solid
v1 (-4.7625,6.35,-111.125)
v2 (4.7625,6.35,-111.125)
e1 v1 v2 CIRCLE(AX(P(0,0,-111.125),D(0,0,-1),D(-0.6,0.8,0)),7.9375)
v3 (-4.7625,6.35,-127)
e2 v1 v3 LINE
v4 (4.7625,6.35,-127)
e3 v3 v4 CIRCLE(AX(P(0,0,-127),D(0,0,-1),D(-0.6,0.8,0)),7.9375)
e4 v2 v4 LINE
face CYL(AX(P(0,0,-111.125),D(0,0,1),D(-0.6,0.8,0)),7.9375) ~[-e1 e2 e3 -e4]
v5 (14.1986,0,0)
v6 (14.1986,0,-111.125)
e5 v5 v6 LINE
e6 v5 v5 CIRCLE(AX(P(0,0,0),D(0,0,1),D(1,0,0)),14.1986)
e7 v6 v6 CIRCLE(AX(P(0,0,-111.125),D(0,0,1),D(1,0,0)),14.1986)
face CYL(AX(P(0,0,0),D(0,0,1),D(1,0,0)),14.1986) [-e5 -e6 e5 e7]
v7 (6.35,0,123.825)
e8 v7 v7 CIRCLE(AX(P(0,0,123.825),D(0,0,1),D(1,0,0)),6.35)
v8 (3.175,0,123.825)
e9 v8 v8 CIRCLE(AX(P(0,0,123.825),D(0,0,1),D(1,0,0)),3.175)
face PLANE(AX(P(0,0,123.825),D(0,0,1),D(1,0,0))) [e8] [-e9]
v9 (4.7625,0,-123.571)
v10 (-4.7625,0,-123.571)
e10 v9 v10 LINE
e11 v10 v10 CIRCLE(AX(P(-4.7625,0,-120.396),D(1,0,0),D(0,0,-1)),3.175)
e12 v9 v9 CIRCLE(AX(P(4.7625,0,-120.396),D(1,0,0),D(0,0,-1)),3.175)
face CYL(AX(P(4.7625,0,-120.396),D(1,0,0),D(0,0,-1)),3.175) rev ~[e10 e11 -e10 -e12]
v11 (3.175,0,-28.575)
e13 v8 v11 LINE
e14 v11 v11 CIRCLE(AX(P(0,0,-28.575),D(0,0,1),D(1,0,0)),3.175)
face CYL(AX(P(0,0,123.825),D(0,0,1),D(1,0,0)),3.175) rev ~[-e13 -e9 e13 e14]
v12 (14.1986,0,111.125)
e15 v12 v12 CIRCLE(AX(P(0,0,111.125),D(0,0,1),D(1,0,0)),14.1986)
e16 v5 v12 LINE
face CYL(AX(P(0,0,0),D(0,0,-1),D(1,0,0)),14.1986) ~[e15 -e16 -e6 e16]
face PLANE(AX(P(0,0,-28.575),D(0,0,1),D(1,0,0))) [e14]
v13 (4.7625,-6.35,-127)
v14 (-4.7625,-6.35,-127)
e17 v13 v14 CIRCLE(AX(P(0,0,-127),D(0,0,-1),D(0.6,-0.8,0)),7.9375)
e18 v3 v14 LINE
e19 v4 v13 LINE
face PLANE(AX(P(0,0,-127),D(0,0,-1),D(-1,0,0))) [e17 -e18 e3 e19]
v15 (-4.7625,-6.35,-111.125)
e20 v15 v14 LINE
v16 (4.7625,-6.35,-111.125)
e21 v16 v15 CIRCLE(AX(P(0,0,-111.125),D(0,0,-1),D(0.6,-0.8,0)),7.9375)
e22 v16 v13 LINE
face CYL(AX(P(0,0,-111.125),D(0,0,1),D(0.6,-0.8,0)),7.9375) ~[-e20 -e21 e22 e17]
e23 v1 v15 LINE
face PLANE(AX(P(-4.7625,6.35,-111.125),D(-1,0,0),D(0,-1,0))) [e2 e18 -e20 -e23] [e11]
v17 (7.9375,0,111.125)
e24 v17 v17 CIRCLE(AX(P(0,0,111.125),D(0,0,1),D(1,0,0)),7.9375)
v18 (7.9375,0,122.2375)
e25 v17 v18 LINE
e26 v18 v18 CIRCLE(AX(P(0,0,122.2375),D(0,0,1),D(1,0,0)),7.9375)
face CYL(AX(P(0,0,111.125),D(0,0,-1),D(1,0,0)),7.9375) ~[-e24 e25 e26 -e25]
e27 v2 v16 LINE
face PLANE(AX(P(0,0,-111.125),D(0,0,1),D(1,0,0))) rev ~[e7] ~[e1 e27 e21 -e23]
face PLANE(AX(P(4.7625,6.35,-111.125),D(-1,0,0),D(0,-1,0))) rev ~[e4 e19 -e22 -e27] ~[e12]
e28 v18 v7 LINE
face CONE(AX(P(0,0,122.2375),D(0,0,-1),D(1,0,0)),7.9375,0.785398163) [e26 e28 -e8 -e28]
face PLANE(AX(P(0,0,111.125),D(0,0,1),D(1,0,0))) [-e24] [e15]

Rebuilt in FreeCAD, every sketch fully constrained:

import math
import FreeCAD as App
import Part
import Sketcher
Q = App.Units.Quantity


def edges_at(feature, points):
    """Names of the edges that pass closest to the given points."""
    edges = feature.Shape.Edges
    near = lambda p: min(range(len(edges)), key=lambda i: edges[i].distToShape(Part.Vertex(*p))[0])
    return sorted({f"Edge{near(p) + 1}" for p in points})

doc = App.newDocument("Part")
body = doc.addObject("PartDesign::Body", "Body")

sketch1 = body.newObject("Sketcher::SketchObject", "Sketch")
sketch1.AttachmentSupport = (doc.getObject("XY_Plane"), [""])
sketch1.MapMode = "FlatFace"
sketch1.addGeometry(Part.Circle(App.Vector(0, 0, 0), App.Vector(0, 0, 1), 14), False)
sketch1.addConstraint([
    Sketcher.Constraint("Coincident", 0, 3, -1, 1),
    Sketcher.Constraint("Diameter", 0, Q("1.118 in")),
])
pad1 = body.newObject("PartDesign::Pad", "Pad")
pad1.Profile = sketch1
pad1.Length = Q("8.75 in")
pad1.Midplane = True

sketch2 = body.newObject("Sketcher::SketchObject", "Sketch001")
sketch2.AttachmentSupport = (doc.getObject("XY_Plane"), [""])
sketch2.MapMode = "FlatFace"
sketch2.AttachmentOffset = App.Placement(App.Vector(0, 0, -4.375 * 25.4), App.Rotation())
sketch2.addGeometry([
    Part.LineSegment(App.Vector(-5, -6, 0), App.Vector(-5, 6, 0)),
    Part.ArcOfCircle(Part.Circle(App.Vector(0, 0, 0), App.Vector(0, 0, 1), 8), math.radians(53), math.radians(127)),
    Part.LineSegment(App.Vector(5, 6, 0), App.Vector(5, -6, 0)),
    Part.ArcOfCircle(Part.Circle(App.Vector(0, 0, 0), App.Vector(0, 0, 1), 8), math.radians(-127), math.radians(-53)),
], False)
sketch2.addConstraint([
    Sketcher.Constraint("Coincident", 0, 2, 1, 2),
    Sketcher.Constraint("Coincident", 1, 1, 2, 1),
    Sketcher.Constraint("Coincident", 2, 2, 3, 2),
    Sketcher.Constraint("Coincident", 3, 1, 0, 1),
    Sketcher.Constraint("Vertical", 0),
    Sketcher.Constraint("Vertical", 2),
    Sketcher.Constraint("Coincident", 1, 3, -1, 1),
    Sketcher.Constraint("Coincident", 3, 3, -1, 1),
    Sketcher.Constraint("Equal", 1, 3),
    Sketcher.Constraint("Horizontal", 0, 2, 1, 1),
    Sketcher.Constraint("Radius", 1, Q("0.3125 in")),
    Sketcher.Constraint("DistanceY", 0, 1, 0, 2, Q("0.5 in")),
])
pad2 = body.newObject("PartDesign::Pad", "Pad001")
pad2.Profile = sketch2
pad2.Length = Q("0.625 in")
pad2.Reversed = True

sketch3 = body.newObject("Sketcher::SketchObject", "Sketch002")
sketch3.AttachmentSupport = (doc.getObject("YZ_Plane"), [""])
sketch3.MapMode = "FlatFace"
sketch3.AttachmentOffset = App.Placement(App.Vector(0, 0, 0.1875 * 25.4), App.Rotation())
sketch3.addGeometry(Part.Circle(App.Vector(0, -120.4, 0), App.Vector(0, 0, 1), 3.2), False)
sketch3.addConstraint([
    Sketcher.Constraint("PointOnObject", 0, 3, -2),
    Sketcher.Constraint("Diameter", 0, Q("0.25 in")),
    Sketcher.Constraint("DistanceY", 0, 3, -1, 1, Q("4.74 in")),
])
pocket1 = body.newObject("PartDesign::Pocket", "Pocket")
pocket1.Profile = sketch3
pocket1.Type = "ThroughAll"

sketch4 = body.newObject("Sketcher::SketchObject", "Sketch003")
sketch4.AttachmentSupport = (doc.getObject("XY_Plane"), [""])
sketch4.MapMode = "FlatFace"
sketch4.AttachmentOffset = App.Placement(App.Vector(0, 0, 4.375 * 25.4), App.Rotation())
sketch4.addGeometry(Part.Circle(App.Vector(0, 0, 0), App.Vector(0, 0, 1), 8), False)
sketch4.addConstraint([
    Sketcher.Constraint("Coincident", 0, 3, -1, 1),
    Sketcher.Constraint("Diameter", 0, Q("0.625 in")),
])
pad3 = body.newObject("PartDesign::Pad", "Pad002")
pad3.Profile = sketch4
pad3.Length = Q("0.5 in")
doc.recompute()

chamfer = body.newObject("PartDesign::Chamfer", "Chamfer")
chamfer.Base = (pad3, edges_at(pad3, [(-7.938, 0, 123.825)]))
chamfer.Size = Q("0.0625 in")

sketch5 = body.newObject("Sketcher::SketchObject", "Sketch004")
sketch5.AttachmentSupport = (doc.getObject("XY_Plane"), [""])
sketch5.MapMode = "FlatFace"
sketch5.AttachmentOffset = App.Placement(App.Vector(0, 0, 4.875 * 25.4), App.Rotation())
sketch5.addGeometry(Part.Circle(App.Vector(0, 0, 0), App.Vector(0, 0, 1), 3.2), False)
sketch5.addConstraint([
    Sketcher.Constraint("Coincident", 0, 3, -1, 1),
    Sketcher.Constraint("Diameter", 0, Q("0.25 in")),
])
pocket2 = body.newObject("PartDesign::Pocket", "Pocket001")
pocket2.Profile = sketch5
pocket2.Length = Q("6 in")

doc.recompute()
